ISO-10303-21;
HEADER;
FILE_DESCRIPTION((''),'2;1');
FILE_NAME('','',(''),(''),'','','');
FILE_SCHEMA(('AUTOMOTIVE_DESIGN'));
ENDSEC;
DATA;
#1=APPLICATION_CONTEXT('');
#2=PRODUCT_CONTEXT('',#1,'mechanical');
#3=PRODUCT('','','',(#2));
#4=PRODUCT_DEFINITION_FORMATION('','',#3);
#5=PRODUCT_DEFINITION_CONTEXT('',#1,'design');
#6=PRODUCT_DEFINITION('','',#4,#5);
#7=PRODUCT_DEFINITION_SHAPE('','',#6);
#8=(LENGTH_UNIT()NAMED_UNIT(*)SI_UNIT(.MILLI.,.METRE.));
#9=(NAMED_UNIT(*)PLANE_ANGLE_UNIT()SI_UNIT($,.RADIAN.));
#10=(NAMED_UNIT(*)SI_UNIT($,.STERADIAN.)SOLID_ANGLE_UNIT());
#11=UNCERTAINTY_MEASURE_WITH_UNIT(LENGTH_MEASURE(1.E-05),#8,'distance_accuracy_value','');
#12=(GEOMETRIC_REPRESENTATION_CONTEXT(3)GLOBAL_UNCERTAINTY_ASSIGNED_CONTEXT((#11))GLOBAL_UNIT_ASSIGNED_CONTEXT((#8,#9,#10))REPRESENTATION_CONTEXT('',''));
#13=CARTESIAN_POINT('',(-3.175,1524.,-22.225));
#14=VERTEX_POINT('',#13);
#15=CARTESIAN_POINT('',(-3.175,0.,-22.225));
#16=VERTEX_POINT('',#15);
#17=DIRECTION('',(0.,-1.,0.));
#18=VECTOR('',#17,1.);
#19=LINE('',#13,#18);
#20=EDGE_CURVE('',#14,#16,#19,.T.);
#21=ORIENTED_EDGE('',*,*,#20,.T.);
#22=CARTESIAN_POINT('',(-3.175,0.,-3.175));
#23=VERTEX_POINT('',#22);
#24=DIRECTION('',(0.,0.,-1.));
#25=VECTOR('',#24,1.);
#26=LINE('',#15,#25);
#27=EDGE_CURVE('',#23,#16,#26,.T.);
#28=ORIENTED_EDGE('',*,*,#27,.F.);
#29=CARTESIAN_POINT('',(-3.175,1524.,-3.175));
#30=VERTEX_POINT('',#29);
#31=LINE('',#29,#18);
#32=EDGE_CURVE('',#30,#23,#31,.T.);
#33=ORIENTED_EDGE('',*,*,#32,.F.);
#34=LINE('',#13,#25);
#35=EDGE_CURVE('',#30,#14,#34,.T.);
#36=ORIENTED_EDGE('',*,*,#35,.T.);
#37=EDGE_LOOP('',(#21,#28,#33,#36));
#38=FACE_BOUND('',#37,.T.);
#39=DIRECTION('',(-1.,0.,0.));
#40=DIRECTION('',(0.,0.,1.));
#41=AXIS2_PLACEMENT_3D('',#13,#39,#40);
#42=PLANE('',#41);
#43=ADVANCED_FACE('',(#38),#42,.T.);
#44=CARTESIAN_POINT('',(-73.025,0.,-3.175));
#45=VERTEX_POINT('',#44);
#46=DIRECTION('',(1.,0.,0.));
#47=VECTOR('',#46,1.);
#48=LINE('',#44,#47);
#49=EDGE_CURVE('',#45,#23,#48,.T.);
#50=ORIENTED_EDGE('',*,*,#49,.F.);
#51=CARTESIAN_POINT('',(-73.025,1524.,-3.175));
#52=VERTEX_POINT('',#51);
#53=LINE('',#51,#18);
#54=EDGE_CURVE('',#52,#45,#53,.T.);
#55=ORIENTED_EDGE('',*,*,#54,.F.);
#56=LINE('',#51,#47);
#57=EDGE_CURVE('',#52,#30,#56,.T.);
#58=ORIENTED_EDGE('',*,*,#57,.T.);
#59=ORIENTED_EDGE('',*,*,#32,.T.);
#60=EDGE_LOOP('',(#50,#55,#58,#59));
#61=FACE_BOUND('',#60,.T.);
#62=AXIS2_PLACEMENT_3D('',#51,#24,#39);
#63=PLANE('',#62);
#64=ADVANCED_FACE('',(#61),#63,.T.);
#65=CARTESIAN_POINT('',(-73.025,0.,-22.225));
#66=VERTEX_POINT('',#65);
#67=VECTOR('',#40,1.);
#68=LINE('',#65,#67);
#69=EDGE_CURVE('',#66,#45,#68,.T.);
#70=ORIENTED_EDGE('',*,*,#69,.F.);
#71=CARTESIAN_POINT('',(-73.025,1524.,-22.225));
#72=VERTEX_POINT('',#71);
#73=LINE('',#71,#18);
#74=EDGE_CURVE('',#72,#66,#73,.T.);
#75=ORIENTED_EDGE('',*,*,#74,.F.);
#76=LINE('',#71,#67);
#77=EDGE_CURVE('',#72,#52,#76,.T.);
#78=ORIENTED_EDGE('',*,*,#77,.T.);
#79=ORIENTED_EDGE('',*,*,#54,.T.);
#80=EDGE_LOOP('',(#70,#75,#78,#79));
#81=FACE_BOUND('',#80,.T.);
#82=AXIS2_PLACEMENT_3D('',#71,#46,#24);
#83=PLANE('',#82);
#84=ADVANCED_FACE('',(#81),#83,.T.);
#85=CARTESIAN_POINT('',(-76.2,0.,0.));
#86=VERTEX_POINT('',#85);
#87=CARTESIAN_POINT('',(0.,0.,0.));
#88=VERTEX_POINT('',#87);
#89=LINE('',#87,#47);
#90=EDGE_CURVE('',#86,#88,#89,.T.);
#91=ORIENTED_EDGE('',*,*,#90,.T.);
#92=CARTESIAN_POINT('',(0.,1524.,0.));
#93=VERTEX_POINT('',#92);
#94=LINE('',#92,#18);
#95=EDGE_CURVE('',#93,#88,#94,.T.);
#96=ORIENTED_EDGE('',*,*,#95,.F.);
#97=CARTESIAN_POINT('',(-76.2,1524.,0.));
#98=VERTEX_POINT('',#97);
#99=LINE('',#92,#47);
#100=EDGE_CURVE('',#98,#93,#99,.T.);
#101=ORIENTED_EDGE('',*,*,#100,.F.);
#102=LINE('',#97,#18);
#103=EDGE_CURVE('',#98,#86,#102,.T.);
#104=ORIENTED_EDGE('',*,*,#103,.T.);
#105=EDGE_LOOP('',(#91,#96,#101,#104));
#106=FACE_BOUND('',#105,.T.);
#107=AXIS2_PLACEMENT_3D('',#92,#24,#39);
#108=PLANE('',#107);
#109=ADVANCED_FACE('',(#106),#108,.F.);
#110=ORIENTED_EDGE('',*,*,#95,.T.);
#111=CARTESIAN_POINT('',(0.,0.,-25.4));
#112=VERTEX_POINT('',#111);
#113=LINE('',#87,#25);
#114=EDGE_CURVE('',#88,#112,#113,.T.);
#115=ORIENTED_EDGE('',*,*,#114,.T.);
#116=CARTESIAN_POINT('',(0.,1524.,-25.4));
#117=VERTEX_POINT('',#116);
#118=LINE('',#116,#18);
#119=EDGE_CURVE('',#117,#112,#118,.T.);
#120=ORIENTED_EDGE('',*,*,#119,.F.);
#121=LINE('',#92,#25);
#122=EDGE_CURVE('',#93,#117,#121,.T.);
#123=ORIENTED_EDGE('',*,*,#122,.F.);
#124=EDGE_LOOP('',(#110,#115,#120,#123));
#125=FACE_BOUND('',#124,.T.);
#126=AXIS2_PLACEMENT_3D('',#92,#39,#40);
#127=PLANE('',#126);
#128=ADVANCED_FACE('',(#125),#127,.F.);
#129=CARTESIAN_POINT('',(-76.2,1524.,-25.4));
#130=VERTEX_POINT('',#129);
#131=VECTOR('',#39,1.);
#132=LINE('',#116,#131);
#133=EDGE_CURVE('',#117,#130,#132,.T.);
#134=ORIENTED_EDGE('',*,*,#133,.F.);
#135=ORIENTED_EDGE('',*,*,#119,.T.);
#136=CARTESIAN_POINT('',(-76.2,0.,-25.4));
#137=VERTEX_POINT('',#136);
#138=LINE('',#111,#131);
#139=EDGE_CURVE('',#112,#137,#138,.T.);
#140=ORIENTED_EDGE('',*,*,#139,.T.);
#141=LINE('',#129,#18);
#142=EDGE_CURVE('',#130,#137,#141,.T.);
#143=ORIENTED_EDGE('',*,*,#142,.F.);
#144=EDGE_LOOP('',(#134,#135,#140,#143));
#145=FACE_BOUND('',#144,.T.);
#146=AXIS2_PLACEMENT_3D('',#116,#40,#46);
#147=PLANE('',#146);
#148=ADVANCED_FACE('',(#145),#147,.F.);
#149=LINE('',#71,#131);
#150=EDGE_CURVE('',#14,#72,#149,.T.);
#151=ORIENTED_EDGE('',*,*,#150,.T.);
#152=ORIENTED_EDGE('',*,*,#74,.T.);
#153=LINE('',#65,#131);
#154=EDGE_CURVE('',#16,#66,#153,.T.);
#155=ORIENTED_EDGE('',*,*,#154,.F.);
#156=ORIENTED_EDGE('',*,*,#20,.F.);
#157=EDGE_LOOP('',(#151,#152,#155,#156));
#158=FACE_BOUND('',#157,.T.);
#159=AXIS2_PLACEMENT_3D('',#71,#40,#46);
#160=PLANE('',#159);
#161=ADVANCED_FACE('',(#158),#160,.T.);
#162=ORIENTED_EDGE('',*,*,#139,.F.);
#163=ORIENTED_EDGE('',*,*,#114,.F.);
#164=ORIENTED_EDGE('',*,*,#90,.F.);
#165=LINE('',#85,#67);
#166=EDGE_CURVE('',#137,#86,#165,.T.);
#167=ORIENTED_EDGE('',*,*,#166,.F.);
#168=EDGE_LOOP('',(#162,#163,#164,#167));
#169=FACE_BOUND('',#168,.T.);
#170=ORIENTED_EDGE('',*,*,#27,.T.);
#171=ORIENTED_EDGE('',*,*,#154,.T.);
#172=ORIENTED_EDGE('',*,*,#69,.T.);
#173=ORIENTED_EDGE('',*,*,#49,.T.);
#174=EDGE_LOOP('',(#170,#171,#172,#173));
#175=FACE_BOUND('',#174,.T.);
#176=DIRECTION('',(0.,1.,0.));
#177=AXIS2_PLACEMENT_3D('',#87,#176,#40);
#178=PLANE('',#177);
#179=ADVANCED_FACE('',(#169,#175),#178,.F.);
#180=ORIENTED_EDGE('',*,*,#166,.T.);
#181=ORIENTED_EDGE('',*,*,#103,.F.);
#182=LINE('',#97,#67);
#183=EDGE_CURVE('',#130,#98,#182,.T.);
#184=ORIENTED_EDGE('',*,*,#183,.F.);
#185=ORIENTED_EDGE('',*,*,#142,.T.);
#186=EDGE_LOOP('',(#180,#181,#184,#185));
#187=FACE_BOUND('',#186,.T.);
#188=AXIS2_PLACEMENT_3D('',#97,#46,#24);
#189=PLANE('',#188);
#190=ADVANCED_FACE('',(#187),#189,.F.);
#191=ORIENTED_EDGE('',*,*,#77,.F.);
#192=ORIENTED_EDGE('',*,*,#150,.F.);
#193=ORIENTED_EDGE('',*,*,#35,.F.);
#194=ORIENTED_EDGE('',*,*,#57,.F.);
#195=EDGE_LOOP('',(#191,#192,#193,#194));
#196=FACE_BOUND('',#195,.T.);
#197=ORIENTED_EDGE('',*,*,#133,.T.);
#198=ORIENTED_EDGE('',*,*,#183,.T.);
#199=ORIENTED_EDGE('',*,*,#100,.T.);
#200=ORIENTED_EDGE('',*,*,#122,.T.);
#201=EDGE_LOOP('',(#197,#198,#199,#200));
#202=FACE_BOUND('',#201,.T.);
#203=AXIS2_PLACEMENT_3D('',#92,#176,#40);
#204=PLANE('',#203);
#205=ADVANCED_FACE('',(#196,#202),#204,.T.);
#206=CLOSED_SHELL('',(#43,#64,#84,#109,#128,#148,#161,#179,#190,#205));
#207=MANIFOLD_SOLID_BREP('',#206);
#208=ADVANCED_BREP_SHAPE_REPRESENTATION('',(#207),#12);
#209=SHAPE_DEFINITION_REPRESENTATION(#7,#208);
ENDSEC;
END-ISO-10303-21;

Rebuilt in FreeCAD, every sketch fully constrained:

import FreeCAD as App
import Part
import Sketcher

V = App.Vector
Q = App.Units.Quantity


def add_polygon(sketch, points):
    """Adds a closed chain of lines whose ends are joined by coincident constraints."""
    first, n = sketch.GeometryCount, len(points)
    for a, b in zip(points, points[1:] + points[:1]):
        sketch.addGeometry(Part.LineSegment(App.Vector(*a, 0), App.Vector(*b, 0)), False)
    for i in range(n):
        sketch.addConstraint(Sketcher.Constraint("Coincident", first + i, 2, first + (i + 1) % n, 1))

doc = App.newDocument("Part")
body = doc.addObject("PartDesign::Body", "Body")

sketch1 = body.newObject("Sketcher::SketchObject", "Sketch")
sketch1.AttachmentSupport = (doc.getObject("XZ_Plane"), [""])
sketch1.MapMode = "FlatFace"
add_polygon(sketch1, [(-76.2, -25.4), (-76.2, 0), (0, 0), (0, -25.4)])
add_polygon(sketch1, [(-3.175, -3.175), (-73.025, -3.175), (-73.025, -22.225), (-3.175, -22.225)])
sketch1.addConstraint([
    Sketcher.Constraint("Vertical", 0),
    Sketcher.Constraint("Horizontal", 1),
    Sketcher.Constraint("Vertical", 2),
    Sketcher.Constraint("Horizontal", 3),
    Sketcher.Constraint("Horizontal", 4),
    Sketcher.Constraint("Vertical", 5),
    Sketcher.Constraint("Horizontal", 6),
    Sketcher.Constraint("Vertical", 7),
    Sketcher.Constraint("Coincident", 1, 2, -1, 1),
    Sketcher.Constraint("DistanceX", 1, 1, 1, 2, Q("3 in")),
    Sketcher.Constraint("DistanceY", 0, 1, 0, 2, Q("1 in")),
    Sketcher.Constraint("DistanceX", 4, 2, 4, 1, Q("2.75 in")),
    Sketcher.Constraint("DistanceY", 5, 2, 5, 1, Q("0.75 in")),
    Sketcher.Constraint("DistanceX", 4, 2, -1, 1, Q("2.875 in")),
    Sketcher.Constraint("DistanceY", 4, 2, -1, 1, Q("0.125 in")),
])
pad1 = body.newObject("PartDesign::Pad", "Pad")
pad1.Profile = sketch1
pad1.Length = Q("60 in")
pad1.Reversed = True

doc.recompute()
